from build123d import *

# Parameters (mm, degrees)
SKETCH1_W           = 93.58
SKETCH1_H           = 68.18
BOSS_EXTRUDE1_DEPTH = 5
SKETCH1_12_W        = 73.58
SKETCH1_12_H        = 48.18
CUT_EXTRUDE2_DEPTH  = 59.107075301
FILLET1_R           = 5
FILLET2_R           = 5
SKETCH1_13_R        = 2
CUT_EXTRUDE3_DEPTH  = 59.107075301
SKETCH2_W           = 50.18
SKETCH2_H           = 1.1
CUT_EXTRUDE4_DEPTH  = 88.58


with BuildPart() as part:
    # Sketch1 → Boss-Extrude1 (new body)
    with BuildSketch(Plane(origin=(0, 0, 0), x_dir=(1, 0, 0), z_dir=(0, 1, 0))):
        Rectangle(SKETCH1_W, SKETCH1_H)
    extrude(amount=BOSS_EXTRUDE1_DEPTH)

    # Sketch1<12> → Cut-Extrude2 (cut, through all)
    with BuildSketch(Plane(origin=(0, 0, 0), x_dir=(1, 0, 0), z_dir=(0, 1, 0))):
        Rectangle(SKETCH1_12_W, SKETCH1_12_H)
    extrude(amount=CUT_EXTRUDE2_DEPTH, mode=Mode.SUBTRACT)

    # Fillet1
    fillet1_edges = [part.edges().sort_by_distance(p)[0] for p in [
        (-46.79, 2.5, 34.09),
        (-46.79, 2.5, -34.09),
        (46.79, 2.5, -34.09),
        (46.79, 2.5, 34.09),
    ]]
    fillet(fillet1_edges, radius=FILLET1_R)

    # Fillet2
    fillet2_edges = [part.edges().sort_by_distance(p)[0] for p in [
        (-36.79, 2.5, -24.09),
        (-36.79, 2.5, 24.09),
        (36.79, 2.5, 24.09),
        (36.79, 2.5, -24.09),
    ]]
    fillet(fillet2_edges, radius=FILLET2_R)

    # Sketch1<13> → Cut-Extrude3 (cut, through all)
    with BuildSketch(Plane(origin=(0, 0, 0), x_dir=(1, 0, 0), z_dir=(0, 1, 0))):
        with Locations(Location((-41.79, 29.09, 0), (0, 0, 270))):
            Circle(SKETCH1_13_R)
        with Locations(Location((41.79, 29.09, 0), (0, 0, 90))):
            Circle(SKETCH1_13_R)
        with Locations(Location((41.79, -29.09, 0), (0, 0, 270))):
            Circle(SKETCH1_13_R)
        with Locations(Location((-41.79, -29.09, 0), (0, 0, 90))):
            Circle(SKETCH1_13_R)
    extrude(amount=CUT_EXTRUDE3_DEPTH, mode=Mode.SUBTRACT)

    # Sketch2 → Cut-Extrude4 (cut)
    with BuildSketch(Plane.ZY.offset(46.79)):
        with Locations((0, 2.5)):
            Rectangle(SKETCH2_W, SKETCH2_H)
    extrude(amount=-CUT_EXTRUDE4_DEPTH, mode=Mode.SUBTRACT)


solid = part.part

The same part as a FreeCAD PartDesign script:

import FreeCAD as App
import Part
import Sketcher

V = App.Vector


def edges_at(feature, points):
    """Names of the edges that pass closest to the given points."""
    edges = feature.Shape.Edges
    near = lambda p: min(range(len(edges)), key=lambda i: edges[i].distToShape(Part.Vertex(*p))[0])
    return sorted({f"Edge{near(p) + 1}" for p in points})


def add_polygon(sketch, points):
    """Adds a closed chain of lines whose ends are joined by coincident constraints."""
    first, n = sketch.GeometryCount, len(points)
    for a, b in zip(points, points[1:] + points[:1]):
        sketch.addGeometry(Part.LineSegment(App.Vector(*a, 0), App.Vector(*b, 0)), False)
    for i in range(n):
        sketch.addConstraint(Sketcher.Constraint("Coincident", first + i, 2, first + (i + 1) % n, 1))

doc = App.newDocument("Part")
body = doc.addObject("PartDesign::Body", "Body")

sketch1 = doc.addObject("Sketcher::SketchObject", "Sketch")
body.addObject(sketch1)
sketch1.AttachmentSupport = (doc.XZ_Plane, [""])
sketch1.MapMode = "FlatFace"
add_polygon(sketch1, [(-47, -34), (-47, 34), (47, 34), (47, -34)])
sketch1.addConstraint([
    Sketcher.Constraint("Vertical", 0),
    Sketcher.Constraint("Horizontal", 1),
    Sketcher.Constraint("Vertical", 2),
    Sketcher.Constraint("Horizontal", 3),
    Sketcher.Constraint("Symmetric", 0, 2, 2, 2, -1, 1),
    Sketcher.Constraint("DistanceX", 1, 1, 1, 2, 93.58),
    Sketcher.Constraint("DistanceY", 0, 1, 0, 2, 68.18),
])
pad1 = doc.addObject("PartDesign::Pad", "Pad")
body.addObject(pad1)
pad1.Profile = sketch1
pad1.Length = 5
pad1.Reversed = True

sketch2 = doc.addObject("Sketcher::SketchObject", "Sketch001")
body.addObject(sketch2)
sketch2.AttachmentSupport = (doc.XZ_Plane, [""])
sketch2.MapMode = "FlatFace"
add_polygon(sketch2, [(-37, -24), (-37, 24), (37, 24), (37, -24)])
sketch2.addConstraint([
    Sketcher.Constraint("Vertical", 0),
    Sketcher.Constraint("Horizontal", 1),
    Sketcher.Constraint("Vertical", 2),
    Sketcher.Constraint("Horizontal", 3),
    Sketcher.Constraint("Symmetric", 0, 2, 2, 2, -1, 1),
    Sketcher.Constraint("DistanceX", 1, 1, 1, 2, 73.58),
    Sketcher.Constraint("DistanceY", 0, 1, 0, 2, 48.18),
])
pocket1 = doc.addObject("PartDesign::Pocket", "Pocket")
body.addObject(pocket1)
pocket1.Profile = sketch2
pocket1.Type = "ThroughAll"
doc.recompute()

fillet = doc.addObject("PartDesign::Fillet", "Fillet")
body.addObject(fillet)
fillet.Base = (pocket1, edges_at(pocket1, [
    (-46.79, 2.5, 34.09),
    (-46.79, 2.5, -34.09),
    (46.79, 2.5, -34.09),
    (46.79, 2.5, 34.09),
]))
fillet.Radius = 5
doc.recompute()

fillet2 = doc.addObject("PartDesign::Fillet", "Fillet001")
body.addObject(fillet2)
fillet2.Base = (fillet, edges_at(fillet, [
    (-36.79, 2.5, -24.09),
    (-36.79, 2.5, 24.09),
    (36.79, 2.5, 24.09),
    (36.79, 2.5, -24.09),
]))
fillet2.Radius = 5

sketch3 = doc.addObject("Sketcher::SketchObject", "Sketch002")
body.addObject(sketch3)
sketch3.AttachmentSupport = (doc.XZ_Plane, [""])
sketch3.MapMode = "FlatFace"
sketch3.addGeometry([
    Part.Circle(V(-41.8, -29.1, 0), V(0, 0, 1), 2),
    Part.Circle(V(41.8, -29.1, 0), V(0, 0, 1), 2),
    Part.Circle(V(41.8, 29.1, 0), V(0, 0, 1), 2),
    Part.Circle(V(-41.8, 29.1, 0), V(0, 0, 1), 2),
], False)
sketch3.addConstraint([
    Sketcher.Constraint("Equal", 0, 1),
    Sketcher.Constraint("Equal", 1, 2),
    Sketcher.Constraint("Equal", 2, 3),
    Sketcher.Constraint("Symmetric", 0, 3, 2, 3, -1, 1),
    Sketcher.Constraint("Symmetric", 1, 3, 3, 3, -1, 1),
    Sketcher.Constraint("Symmetric", 0, 3, 1, 3, -2),
    Sketcher.Constraint("Diameter", 0, 4.0),
    Sketcher.Constraint("DistanceX", 0, 3, -1, 1, 41.79),
    Sketcher.Constraint("DistanceY", 0, 3, -1, 1, 29.09),
])
pocket2 = doc.addObject("PartDesign::Pocket", "Pocket001")
body.addObject(pocket2)
pocket2.Profile = sketch3
pocket2.Type = "ThroughAll"

sketch4 = doc.addObject("Sketcher::SketchObject", "Sketch003")
body.addObject(sketch4)
sketch4.AttachmentSupport = (doc.YZ_Plane, [""])
sketch4.MapMode = "FlatFace"
sketch4.AttachmentOffset = App.Placement(V(0, 0, -46.79), App.Rotation())
add_polygon(sketch4, [(3, -25.1), (1.9, -25.1), (1.9, 25.1), (3, 25.1)])
sketch4.addConstraint([
    Sketcher.Constraint("Horizontal", 0),
    Sketcher.Constraint("Vertical", 1),
    Sketcher.Constraint("Horizontal", 2),
    Sketcher.Constraint("Vertical", 3),
    Sketcher.Constraint("DistanceX", 0, 2, 0, 1, 1.1),
    Sketcher.Constraint("DistanceY", 1, 1, 1, 2, 50.18),
    Sketcher.Constraint("DistanceX", -1, 1, 0, 2, 1.95),
    Sketcher.Constraint("DistanceY", 0, 2, -1, 1, 25.09),
])
pocket3 = doc.addObject("PartDesign::Pocket", "Pocket002")
body.addObject(pocket3)
pocket3.Profile = sketch4
pocket3.Length = 88.58
pocket3.Reversed = True

doc.recompute()
